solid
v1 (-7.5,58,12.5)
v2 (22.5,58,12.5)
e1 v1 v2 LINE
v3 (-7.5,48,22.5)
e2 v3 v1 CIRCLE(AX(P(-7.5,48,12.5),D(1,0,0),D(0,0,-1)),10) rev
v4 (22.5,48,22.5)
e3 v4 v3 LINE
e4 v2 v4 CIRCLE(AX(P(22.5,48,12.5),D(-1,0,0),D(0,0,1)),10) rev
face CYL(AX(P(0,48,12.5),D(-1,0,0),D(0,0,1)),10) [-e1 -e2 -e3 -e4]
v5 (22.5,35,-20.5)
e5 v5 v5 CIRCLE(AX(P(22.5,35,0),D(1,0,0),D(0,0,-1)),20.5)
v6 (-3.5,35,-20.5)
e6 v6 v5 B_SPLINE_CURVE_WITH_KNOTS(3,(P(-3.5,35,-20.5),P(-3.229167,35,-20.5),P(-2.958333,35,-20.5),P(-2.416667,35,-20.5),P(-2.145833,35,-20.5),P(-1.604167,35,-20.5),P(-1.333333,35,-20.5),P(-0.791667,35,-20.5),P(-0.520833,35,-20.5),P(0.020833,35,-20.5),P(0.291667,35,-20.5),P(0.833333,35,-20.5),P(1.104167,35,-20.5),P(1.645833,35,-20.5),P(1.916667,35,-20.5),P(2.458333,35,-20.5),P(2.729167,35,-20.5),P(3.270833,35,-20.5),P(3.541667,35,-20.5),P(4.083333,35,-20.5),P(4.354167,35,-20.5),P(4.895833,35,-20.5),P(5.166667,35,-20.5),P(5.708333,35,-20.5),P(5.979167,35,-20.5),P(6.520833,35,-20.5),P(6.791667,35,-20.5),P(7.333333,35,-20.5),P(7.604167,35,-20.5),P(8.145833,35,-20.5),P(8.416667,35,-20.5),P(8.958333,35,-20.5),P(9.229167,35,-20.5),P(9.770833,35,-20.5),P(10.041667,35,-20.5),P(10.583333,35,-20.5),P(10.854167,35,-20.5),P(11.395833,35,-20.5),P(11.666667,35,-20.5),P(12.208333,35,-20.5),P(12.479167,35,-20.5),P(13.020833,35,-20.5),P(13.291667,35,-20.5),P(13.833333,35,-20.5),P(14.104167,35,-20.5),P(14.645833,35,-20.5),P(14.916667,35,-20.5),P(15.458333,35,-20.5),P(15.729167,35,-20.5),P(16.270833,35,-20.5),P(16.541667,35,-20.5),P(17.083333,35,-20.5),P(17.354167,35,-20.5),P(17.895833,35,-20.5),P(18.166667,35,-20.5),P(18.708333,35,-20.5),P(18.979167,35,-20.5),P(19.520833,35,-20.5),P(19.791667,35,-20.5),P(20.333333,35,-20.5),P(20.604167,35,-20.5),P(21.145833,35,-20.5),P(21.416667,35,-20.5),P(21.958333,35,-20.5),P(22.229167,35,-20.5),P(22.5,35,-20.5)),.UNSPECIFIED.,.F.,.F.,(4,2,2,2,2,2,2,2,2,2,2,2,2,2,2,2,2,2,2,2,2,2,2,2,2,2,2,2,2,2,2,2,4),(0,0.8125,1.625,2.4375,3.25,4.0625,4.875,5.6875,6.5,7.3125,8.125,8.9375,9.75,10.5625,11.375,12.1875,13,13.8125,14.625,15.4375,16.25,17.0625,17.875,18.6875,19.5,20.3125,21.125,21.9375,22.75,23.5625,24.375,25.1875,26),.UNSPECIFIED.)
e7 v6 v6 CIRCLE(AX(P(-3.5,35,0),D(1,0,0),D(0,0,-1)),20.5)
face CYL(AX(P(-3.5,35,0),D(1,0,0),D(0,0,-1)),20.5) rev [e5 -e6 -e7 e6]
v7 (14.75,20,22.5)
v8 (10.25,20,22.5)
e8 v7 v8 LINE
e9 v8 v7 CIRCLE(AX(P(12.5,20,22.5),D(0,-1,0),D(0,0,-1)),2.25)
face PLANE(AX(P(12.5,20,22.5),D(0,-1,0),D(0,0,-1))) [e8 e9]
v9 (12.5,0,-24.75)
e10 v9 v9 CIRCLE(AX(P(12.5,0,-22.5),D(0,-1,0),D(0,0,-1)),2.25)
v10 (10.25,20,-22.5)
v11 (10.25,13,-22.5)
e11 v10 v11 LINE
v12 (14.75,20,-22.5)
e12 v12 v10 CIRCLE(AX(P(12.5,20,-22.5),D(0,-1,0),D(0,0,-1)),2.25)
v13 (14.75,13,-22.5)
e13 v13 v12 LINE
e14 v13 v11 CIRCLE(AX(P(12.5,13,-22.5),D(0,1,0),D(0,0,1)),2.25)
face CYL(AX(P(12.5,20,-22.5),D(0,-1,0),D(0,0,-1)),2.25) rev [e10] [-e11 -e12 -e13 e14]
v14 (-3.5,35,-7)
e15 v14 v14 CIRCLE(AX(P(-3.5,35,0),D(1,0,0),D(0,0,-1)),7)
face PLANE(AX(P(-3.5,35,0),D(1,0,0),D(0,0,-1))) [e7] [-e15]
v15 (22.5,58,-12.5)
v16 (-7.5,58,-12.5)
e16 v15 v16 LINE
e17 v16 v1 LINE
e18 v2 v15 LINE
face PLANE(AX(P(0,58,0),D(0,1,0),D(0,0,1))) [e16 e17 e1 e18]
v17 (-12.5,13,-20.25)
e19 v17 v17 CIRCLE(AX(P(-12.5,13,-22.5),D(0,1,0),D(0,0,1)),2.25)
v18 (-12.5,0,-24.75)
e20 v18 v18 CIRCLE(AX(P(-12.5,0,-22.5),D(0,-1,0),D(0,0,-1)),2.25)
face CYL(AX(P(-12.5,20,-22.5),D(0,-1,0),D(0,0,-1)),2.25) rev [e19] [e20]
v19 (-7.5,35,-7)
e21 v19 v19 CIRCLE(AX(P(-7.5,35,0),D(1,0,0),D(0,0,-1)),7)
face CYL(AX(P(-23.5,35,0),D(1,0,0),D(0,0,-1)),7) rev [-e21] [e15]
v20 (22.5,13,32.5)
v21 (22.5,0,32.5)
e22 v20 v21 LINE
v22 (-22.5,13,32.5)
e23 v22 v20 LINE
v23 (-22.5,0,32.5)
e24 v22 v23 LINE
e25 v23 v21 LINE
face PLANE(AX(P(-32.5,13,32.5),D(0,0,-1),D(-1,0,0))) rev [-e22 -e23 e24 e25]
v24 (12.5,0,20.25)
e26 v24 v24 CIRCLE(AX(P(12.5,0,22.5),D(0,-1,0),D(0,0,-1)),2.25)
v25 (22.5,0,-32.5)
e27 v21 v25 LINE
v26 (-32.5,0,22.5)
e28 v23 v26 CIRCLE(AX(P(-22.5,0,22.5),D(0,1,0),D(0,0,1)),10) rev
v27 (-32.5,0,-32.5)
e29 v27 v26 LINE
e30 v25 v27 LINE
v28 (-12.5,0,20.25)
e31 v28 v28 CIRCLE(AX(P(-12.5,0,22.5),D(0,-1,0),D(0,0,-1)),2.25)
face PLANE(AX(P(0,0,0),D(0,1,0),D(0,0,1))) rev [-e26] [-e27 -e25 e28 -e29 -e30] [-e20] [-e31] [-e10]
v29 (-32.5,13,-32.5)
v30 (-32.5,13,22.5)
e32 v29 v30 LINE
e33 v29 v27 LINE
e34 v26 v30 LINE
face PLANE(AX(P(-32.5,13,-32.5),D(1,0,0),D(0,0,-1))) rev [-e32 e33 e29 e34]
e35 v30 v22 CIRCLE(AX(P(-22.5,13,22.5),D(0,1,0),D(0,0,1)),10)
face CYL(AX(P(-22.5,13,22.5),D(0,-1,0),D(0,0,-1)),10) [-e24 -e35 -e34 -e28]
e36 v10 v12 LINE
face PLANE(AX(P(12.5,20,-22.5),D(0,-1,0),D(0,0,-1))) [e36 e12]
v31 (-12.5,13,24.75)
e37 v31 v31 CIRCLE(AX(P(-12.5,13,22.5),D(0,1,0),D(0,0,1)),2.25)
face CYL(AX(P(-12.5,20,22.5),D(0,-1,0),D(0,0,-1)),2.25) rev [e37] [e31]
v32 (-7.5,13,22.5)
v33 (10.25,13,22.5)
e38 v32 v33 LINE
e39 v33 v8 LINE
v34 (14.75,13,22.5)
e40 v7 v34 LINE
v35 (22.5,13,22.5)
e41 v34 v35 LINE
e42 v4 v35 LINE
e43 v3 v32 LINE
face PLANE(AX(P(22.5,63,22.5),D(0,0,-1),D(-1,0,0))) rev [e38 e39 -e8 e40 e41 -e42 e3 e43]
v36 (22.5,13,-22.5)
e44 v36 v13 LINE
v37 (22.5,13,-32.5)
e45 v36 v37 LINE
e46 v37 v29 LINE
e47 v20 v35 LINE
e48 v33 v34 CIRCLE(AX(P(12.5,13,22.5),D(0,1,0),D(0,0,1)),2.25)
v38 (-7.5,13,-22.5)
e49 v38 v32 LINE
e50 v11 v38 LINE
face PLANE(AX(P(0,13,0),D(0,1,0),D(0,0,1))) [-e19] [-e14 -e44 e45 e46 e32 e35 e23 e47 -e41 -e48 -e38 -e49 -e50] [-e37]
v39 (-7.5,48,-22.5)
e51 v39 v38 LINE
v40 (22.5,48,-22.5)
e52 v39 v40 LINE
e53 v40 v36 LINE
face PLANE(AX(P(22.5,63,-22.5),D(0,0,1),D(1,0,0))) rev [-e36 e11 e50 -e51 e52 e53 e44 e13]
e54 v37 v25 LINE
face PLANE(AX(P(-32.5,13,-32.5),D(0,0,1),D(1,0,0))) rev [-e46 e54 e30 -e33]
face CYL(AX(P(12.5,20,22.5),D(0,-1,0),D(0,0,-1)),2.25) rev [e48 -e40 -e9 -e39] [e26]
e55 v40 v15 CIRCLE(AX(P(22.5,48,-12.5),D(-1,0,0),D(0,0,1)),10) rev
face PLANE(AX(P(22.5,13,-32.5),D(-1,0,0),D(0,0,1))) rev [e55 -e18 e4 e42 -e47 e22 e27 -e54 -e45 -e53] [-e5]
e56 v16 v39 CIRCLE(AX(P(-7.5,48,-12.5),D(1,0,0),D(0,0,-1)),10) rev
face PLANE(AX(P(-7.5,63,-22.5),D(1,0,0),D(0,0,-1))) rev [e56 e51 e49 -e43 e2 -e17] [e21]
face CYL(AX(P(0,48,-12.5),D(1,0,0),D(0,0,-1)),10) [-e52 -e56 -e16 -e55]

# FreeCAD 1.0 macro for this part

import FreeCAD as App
import Part
import Sketcher


def edges_at(feature, points):
    """Names of the edges that pass closest to the given points."""
    edges = feature.Shape.Edges
    near = lambda p: min(range(len(edges)), key=lambda i: edges[i].distToShape(Part.Vertex(*p))[0])
    return sorted({f"Edge{near(p) + 1}" for p in points})

doc = App.newDocument("Part")
params = doc.addObject("Spreadsheet::Sheet", "Params")
for row, (alias, value) in enumerate([
    ("sketch1_width", "55 mm"),
    ("sketch1_height", "65 mm"),
    ("pad1_length", "13 mm"),
    ("sketch2_width", "30 mm"),
    ("sketch2_height", "45 mm"),
    ("pad2_length", "50 mm"),
    ("sketch3_diameter", "41 mm"),
    ("pocket1_length", "26 mm"),
    ("sketch4_diameter", "14 mm"),
    ("pocket2_length", "20 mm"),
    ("sketch5_diameter", "4.5 mm"),
    ("pocket3_length", "20 mm"),
    ("fillet_radius", "10 mm"),
    ("sketch6_width", "30 mm"),
    ("sketch6_height", "45 mm"),
    ("pocket4_length", "5 mm"),
    ("fillet2_radius", "10 mm"),
    ("fillet3_radius", "10 mm"),
], start=1):
    params.set(f"A{row}", alias)
    params.set(f"B{row}", "=" + value)
    params.setAlias(f"B{row}", alias)

body = doc.addObject("PartDesign::Body", "Body")

# Sketch on XZ plane
sketch1 = body.newObject("Sketcher::SketchObject", "Sketch")
sketch1.AttachmentSupport = (doc.getObject("XZ_Plane"), [""])
sketch1.MapMode = "FlatFace"
sketch1.addGeometry(Part.LineSegment(App.Vector(-32, -32, 0), App.Vector(-32, 32, 0)), False)
sketch1.addGeometry(Part.LineSegment(App.Vector(-32, 32, 0), App.Vector(22, 32, 0)), False)
sketch1.addGeometry(Part.LineSegment(App.Vector(22, 32, 0), App.Vector(22, -32, 0)), False)
sketch1.addGeometry(Part.LineSegment(App.Vector(22, -32, 0), App.Vector(-32, -32, 0)), False)
sketch1.addConstraint(Sketcher.Constraint("Coincident", 0, 2, 1, 1))
sketch1.addConstraint(Sketcher.Constraint("Coincident", 1, 2, 2, 1))
sketch1.addConstraint(Sketcher.Constraint("Coincident", 2, 2, 3, 1))
sketch1.addConstraint(Sketcher.Constraint("Coincident", 3, 2, 0, 1))
sketch1.addConstraint(Sketcher.Constraint("Vertical", 0))
sketch1.addConstraint(Sketcher.Constraint("Horizontal", 1))
sketch1.addConstraint(Sketcher.Constraint("Vertical", 2))
sketch1.addConstraint(Sketcher.Constraint("Horizontal", 3))
sketch1.addConstraint(Sketcher.Constraint("DistanceX", 1, 1, 1, 2, 55.0))
sketch1.addConstraint(Sketcher.Constraint("DistanceY", 0, 1, 0, 2, 65.0))
sketch1.addConstraint(Sketcher.Constraint("DistanceX", 0, 2, -1, 1, 32.5))
sketch1.addConstraint(Sketcher.Constraint("DistanceY", -1, 1, 0, 2, 32.5))
sketch1.setExpression("Constraints[8]", "Params.sketch1_width")
sketch1.setExpression("Constraints[9]", "Params.sketch1_height")
pad1 = body.newObject("PartDesign::Pad", "Pad")
pad1.Profile = sketch1
pad1.setExpression("Length", "Params.pad1_length")
pad1.Reversed = True

# Sketch on XZ plane
sketch2 = body.newObject("Sketcher::SketchObject", "Sketch001")
sketch2.AttachmentSupport = (doc.getObject("XZ_Plane"), [""])
sketch2.MapMode = "FlatFace"
sketch2.AttachmentOffset = App.Placement(App.Vector(0, 0, -13), App.Rotation())
sketch2.addGeometry(Part.LineSegment(App.Vector(-8, -22, 0), App.Vector(-8, 22, 0)), False)
sketch2.addGeometry(Part.LineSegment(App.Vector(-8, 22, 0), App.Vector(22, 22, 0)), False)
sketch2.addGeometry(Part.LineSegment(App.Vector(22, 22, 0), App.Vector(22, -22, 0)), False)
sketch2.addGeometry(Part.LineSegment(App.Vector(22, -22, 0), App.Vector(-8, -22, 0)), False)
sketch2.addConstraint(Sketcher.Constraint("Coincident", 0, 2, 1, 1))
sketch2.addConstraint(Sketcher.Constraint("Coincident", 1, 2, 2, 1))
sketch2.addConstraint(Sketcher.Constraint("Coincident", 2, 2, 3, 1))
sketch2.addConstraint(Sketcher.Constraint("Coincident", 3, 2, 0, 1))
sketch2.addConstraint(Sketcher.Constraint("Vertical", 0))
sketch2.addConstraint(Sketcher.Constraint("Horizontal", 1))
sketch2.addConstraint(Sketcher.Constraint("Vertical", 2))
sketch2.addConstraint(Sketcher.Constraint("Horizontal", 3))
sketch2.addConstraint(Sketcher.Constraint("DistanceX", 1, 1, 1, 2, 30.0))
sketch2.addConstraint(Sketcher.Constraint("DistanceY", 0, 1, 0, 2, 45.0))
sketch2.addConstraint(Sketcher.Constraint("DistanceX", 0, 2, -1, 1, 7.5))
sketch2.addConstraint(Sketcher.Constraint("DistanceY", -1, 1, 0, 2, 22.5))
sketch2.setExpression("Constraints[8]", "Params.sketch2_width")
sketch2.setExpression("Constraints[9]", "Params.sketch2_height")
pad2 = body.newObject("PartDesign::Pad", "Pad001")
pad2.Profile = sketch2
pad2.setExpression("Length", "Params.pad2_length")
pad2.Reversed = True

# Sketch on YZ plane
sketch3 = body.newObject("Sketcher::SketchObject", "Sketch002")
sketch3.AttachmentSupport = (doc.getObject("YZ_Plane"), [""])
sketch3.MapMode = "FlatFace"
sketch3.AttachmentOffset = App.Placement(App.Vector(0, 0, 22.5), App.Rotation())
sketch3.addGeometry(Part.Circle(App.Vector(35, 0, 0), App.Vector(0, 0, 1), 20), False)
sketch3.addConstraint(Sketcher.Constraint("PointOnObject", 0, 3, -1))
sketch3.addConstraint(Sketcher.Constraint("Diameter", 0, 41.0))
sketch3.addConstraint(Sketcher.Constraint("DistanceX", -1, 1, 0, 3, 35.0))
sketch3.setExpression("Constraints[1]", "Params.sketch3_diameter")
pocket1 = body.newObject("PartDesign::Pocket", "Pocket")
pocket1.Profile = sketch3
pocket1.setExpression("Length", "Params.pocket1_length")

# Sketch on YZ plane
sketch4 = body.newObject("Sketcher::SketchObject", "Sketch003")
sketch4.AttachmentSupport = (doc.getObject("YZ_Plane"), [""])
sketch4.MapMode = "FlatFace"
sketch4.AttachmentOffset = App.Placement(App.Vector(0, 0, -3.5), App.Rotation())
sketch4.addGeometry(Part.Circle(App.Vector(35, 0, 0), App.Vector(0, 0, 1), 7), False)
sketch4.addConstraint(Sketcher.Constraint("PointOnObject", 0, 3, -1))
sketch4.addConstraint(Sketcher.Constraint("Diameter", 0, 14.0))
sketch4.addConstraint(Sketcher.Constraint("DistanceX", -1, 1, 0, 3, 35.0))
sketch4.setExpression("Constraints[1]", "Params.sketch4_diameter")
pocket2 = body.newObject("PartDesign::Pocket", "Pocket001")
pocket2.Profile = sketch4
pocket2.setExpression("Length", "Params.pocket2_length")

# Sketch on XZ plane
sketch5 = body.newObject("Sketcher::SketchObject", "Sketch004")
sketch5.AttachmentSupport = (doc.getObject("XZ_Plane"), [""])
sketch5.MapMode = "FlatFace"
sketch5.addGeometry(Part.Circle(App.Vector(-12.5, 22.5, 0), App.Vector(0, 0, 1), 2.2), False)
sketch5.addGeometry(Part.Circle(App.Vector(-12.5, -22.5, 0), App.Vector(0, 0, 1), 2.2), False)
sketch5.addGeometry(Part.Circle(App.Vector(12.5, -22.5, 0), App.Vector(0, 0, 1), 2.2), False)
sketch5.addGeometry(Part.Circle(App.Vector(12.5, 22.5, 0), App.Vector(0, 0, 1), 2.2), False)
sketch5.addConstraint(Sketcher.Constraint("Equal", 0, 1))
sketch5.addConstraint(Sketcher.Constraint("Equal", 1, 2))
sketch5.addConstraint(Sketcher.Constraint("Equal", 2, 3))
sketch5.addConstraint(Sketcher.Constraint("Symmetric", 0, 3, 2, 3, -1, 1))
sketch5.addConstraint(Sketcher.Constraint("Symmetric", 1, 3, 3, 3, -1, 1))
sketch5.addConstraint(Sketcher.Constraint("Symmetric", 1, 3, 2, 3, -2))
sketch5.addConstraint(Sketcher.Constraint("Diameter", 0, 4.5))
sketch5.addConstraint(Sketcher.Constraint("DistanceY", 1, 3, 0, 3, 45.0))
sketch5.addConstraint(Sketcher.Constraint("DistanceX", 1, 3, 2, 3, 25.0))
sketch5.setExpression("Constraints[6]", "Params.sketch5_diameter")
pocket3 = body.newObject("PartDesign::Pocket", "Pocket002")
pocket3.Profile = sketch5
pocket3.setExpression("Length", "Params.pocket3_length")
doc.recompute()

fillet = body.newObject("PartDesign::Fillet", "Fillet")
fillet.Base = (pocket3, edges_at(pocket3, [(-32.5, 6.5, 32.5)]))
fillet.setExpression("Radius", "Params.fillet_radius")

# Sketch on XZ plane
sketch6 = body.newObject("Sketcher::SketchObject", "Sketch005")
sketch6.AttachmentSupport = (doc.getObject("XZ_Plane"), [""])
sketch6.MapMode = "FlatFace"
sketch6.AttachmentOffset = App.Placement(App.Vector(0, 0, -63), App.Rotation())
sketch6.addGeometry(Part.LineSegment(App.Vector(-8, -22, 0), App.Vector(-8, 22, 0)), False)
sketch6.addGeometry(Part.LineSegment(App.Vector(-8, 22, 0), App.Vector(22, 22, 0)), False)
sketch6.addGeometry(Part.LineSegment(App.Vector(22, 22, 0), App.Vector(22, -22, 0)), False)
sketch6.addGeometry(Part.LineSegment(App.Vector(22, -22, 0), App.Vector(-8, -22, 0)), False)
sketch6.addConstraint(Sketcher.Constraint("Coincident", 0, 2, 1, 1))
sketch6.addConstraint(Sketcher.Constraint("Coincident", 1, 2, 2, 1))
sketch6.addConstraint(Sketcher.Constraint("Coincident", 2, 2, 3, 1))
sketch6.addConstraint(Sketcher.Constraint("Coincident", 3, 2, 0, 1))
sketch6.addConstraint(Sketcher.Constraint("Vertical", 0))
sketch6.addConstraint(Sketcher.Constraint("Horizontal", 1))
sketch6.addConstraint(Sketcher.Constraint("Vertical", 2))
sketch6.addConstraint(Sketcher.Constraint("Horizontal", 3))
sketch6.addConstraint(Sketcher.Constraint("DistanceX", 1, 1, 1, 2, 30.0))
sketch6.addConstraint(Sketcher.Constraint("DistanceY", 0, 1, 0, 2, 45.0))
sketch6.addConstraint(Sketcher.Constraint("DistanceX", 0, 2, -1, 1, 7.5))
sketch6.addConstraint(Sketcher.Constraint("DistanceY", -1, 1, 0, 2, 22.5))
sketch6.setExpression("Constraints[8]", "Params.sketch6_width")
sketch6.setExpression("Constraints[9]", "Params.sketch6_height")
pocket4 = body.newObject("PartDesign::Pocket", "Pocket003")
pocket4.Profile = sketch6
pocket4.setExpression("Length", "Params.pocket4_length")
pocket4.Reversed = True
doc.recompute()

fillet2 = body.newObject("PartDesign::Fillet", "Fillet001")
fillet2.Base = (pocket4, edges_at(pocket4, [(7.5, 58, 22.5)]))
fillet2.setExpression("Radius", "Params.fillet2_radius")
doc.recompute()

fillet3 = body.newObject("PartDesign::Fillet", "Fillet002")
fillet3.Base = (fillet2, edges_at(fillet2, [(7.5, 58, -22.5)]))
fillet3.setExpression("Radius", "Params.fillet3_radius")

doc.recompute()
